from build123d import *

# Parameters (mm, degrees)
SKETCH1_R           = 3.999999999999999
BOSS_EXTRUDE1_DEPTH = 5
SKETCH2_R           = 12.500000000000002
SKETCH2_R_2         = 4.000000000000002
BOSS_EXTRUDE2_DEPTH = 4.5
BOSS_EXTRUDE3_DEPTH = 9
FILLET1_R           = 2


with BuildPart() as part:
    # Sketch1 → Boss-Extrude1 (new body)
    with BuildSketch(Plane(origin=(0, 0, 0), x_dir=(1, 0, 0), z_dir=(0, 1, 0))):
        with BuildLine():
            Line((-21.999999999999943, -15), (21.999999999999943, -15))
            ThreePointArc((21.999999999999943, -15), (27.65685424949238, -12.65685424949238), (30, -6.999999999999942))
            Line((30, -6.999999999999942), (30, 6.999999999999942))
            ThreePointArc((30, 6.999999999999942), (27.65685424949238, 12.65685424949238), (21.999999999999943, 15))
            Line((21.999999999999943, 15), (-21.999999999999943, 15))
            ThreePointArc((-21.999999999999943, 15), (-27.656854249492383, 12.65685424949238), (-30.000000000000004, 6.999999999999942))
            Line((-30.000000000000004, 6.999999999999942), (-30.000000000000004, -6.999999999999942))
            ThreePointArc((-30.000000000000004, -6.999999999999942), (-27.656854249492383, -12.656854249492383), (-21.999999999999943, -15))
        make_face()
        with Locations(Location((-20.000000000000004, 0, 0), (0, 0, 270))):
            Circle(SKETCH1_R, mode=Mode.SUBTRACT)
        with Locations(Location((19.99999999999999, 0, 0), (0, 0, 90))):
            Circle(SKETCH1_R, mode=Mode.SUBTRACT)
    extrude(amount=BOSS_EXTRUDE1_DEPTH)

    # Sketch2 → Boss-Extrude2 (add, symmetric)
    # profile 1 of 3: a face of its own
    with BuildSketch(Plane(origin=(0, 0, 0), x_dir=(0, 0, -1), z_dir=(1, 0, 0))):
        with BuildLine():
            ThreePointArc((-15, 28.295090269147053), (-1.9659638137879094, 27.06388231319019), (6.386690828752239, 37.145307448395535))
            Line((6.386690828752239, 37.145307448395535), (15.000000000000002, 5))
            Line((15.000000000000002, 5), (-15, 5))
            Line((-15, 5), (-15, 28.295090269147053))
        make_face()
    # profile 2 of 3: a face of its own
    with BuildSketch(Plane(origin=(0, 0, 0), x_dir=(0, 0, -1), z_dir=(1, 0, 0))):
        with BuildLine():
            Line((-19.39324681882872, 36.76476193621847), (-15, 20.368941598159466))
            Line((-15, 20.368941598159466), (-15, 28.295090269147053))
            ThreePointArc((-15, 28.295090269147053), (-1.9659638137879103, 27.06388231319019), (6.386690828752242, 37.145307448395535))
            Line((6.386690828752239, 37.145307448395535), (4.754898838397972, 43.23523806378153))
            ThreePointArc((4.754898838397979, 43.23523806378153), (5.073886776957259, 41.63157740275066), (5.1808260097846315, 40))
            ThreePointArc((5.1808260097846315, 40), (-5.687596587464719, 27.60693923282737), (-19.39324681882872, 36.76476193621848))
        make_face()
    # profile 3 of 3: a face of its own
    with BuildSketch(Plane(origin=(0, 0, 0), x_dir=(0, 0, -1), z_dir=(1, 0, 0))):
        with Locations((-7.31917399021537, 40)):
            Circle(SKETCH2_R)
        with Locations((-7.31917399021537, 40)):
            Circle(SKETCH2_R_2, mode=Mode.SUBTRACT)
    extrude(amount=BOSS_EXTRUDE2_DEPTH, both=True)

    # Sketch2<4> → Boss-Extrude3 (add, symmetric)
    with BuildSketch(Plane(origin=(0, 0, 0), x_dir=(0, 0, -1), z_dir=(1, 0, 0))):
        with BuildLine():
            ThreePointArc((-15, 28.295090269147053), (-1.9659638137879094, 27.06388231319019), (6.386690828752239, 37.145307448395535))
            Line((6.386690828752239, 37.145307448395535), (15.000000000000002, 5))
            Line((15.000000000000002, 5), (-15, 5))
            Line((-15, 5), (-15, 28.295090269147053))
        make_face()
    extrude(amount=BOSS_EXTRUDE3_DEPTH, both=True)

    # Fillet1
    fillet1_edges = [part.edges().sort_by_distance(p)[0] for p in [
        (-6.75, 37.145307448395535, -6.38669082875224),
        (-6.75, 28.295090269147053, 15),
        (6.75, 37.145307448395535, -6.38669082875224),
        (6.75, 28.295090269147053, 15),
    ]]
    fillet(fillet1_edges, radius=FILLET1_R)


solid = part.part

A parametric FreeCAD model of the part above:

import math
import FreeCAD as App
import Part
import Sketcher
Q = App.Units.Quantity


def edges_at(feature, points):
    """Names of the edges that pass closest to the given points."""
    edges = feature.Shape.Edges
    near = lambda p: min(range(len(edges)), key=lambda i: edges[i].distToShape(Part.Vertex(*p))[0])
    return sorted({f"Edge{near(p) + 1}" for p in points})

doc = App.newDocument("Part")
body = doc.addObject("PartDesign::Body", "Body")

sketch1 = body.newObject("Sketcher::SketchObject", "Sketch")
sketch1.AttachmentSupport = (doc.getObject("XZ_Plane"), [""])
sketch1.MapMode = "FlatFace"
sketch1.addGeometry([
    Part.LineSegment(App.Vector(-22, 15, 0), App.Vector(22, 15, 0)),
    Part.ArcOfCircle(Part.Circle(App.Vector(22, 7, 0), App.Vector(0, 0, 1), 8), math.radians(0), math.radians(90)),
    Part.LineSegment(App.Vector(30, 7, 0), App.Vector(30, -7, 0)),
    Part.ArcOfCircle(Part.Circle(App.Vector(22, -7, 0), App.Vector(0, 0, 1), 8), math.radians(-90), math.radians(0)),
    Part.LineSegment(App.Vector(22, -15, 0), App.Vector(-22, -15, 0)),
    Part.ArcOfCircle(Part.Circle(App.Vector(-22, -7, 0), App.Vector(0, 0, 1), 8), math.radians(180), math.radians(270)),
    Part.LineSegment(App.Vector(-30, -7, 0), App.Vector(-30, 7, 0)),
    Part.ArcOfCircle(Part.Circle(App.Vector(-22, 7, 0), App.Vector(0, 0, 1), 8), math.radians(90), math.radians(180)),
    Part.Circle(App.Vector(-20, 0, 0), App.Vector(0, 0, 1), 4),
    Part.Circle(App.Vector(20, 0, 0), App.Vector(0, 0, 1), 4),
], False)
sketch1.addConstraint([
    Sketcher.Constraint("Tangent", 0, 2, 1, 2),
    Sketcher.Constraint("Tangent", 1, 1, 2, 1),
    Sketcher.Constraint("Tangent", 2, 2, 3, 2),
    Sketcher.Constraint("Tangent", 3, 1, 4, 1),
    Sketcher.Constraint("Tangent", 4, 2, 5, 2),
    Sketcher.Constraint("Tangent", 5, 1, 6, 1),
    Sketcher.Constraint("Tangent", 6, 2, 7, 2),
    Sketcher.Constraint("Tangent", 7, 1, 0, 1),
    Sketcher.Constraint("Horizontal", 0),
    Sketcher.Constraint("Vertical", 2),
    Sketcher.Constraint("Horizontal", 4),
    Sketcher.Constraint("Vertical", 6),
    Sketcher.Constraint("Equal", 1, 3),
    Sketcher.Constraint("Equal", 3, 5),
    Sketcher.Constraint("Equal", 5, 7),
    Sketcher.Constraint("Equal", 8, 9),
    Sketcher.Constraint("Symmetric", 1, 3, 5, 3, -1, 1),
    Sketcher.Constraint("Symmetric", 8, 3, 9, 3, -1, 1),
    Sketcher.Constraint("PointOnObject", 8, 3, -1),
    Sketcher.Constraint("Diameter", 8, 8.0),
    Sketcher.Constraint("Radius", 1, 8.0),
    Sketcher.Constraint("DistanceX", 0, 1, 0, 2, 44.0),
    Sketcher.Constraint("DistanceY", 2, 2, 2, 1, 14.0),
    Sketcher.Constraint("DistanceX", 8, 3, -1, 1, 20.0),
])
pad1 = body.newObject("PartDesign::Pad", "Pad")
pad1.Profile = sketch1
pad1.Length = 5
pad1.Reversed = True

sketch2 = body.newObject("Sketcher::SketchObject", "Sketch001")
sketch2.AttachmentSupport = (doc.getObject("YZ_Plane"), [""])
sketch2.MapMode = "FlatFace"
sketch2.addGeometry([
    Part.LineSegment(App.Vector(5, -15, 0), App.Vector(43.2, -4.8, 0)),
    Part.ArcOfCircle(Part.Circle(App.Vector(40, 7.3, 0), App.Vector(0, 0, 1), 12.5), math.radians(-75), math.radians(105)),
    Part.LineSegment(App.Vector(36.8, 19.4, 0), App.Vector(20.4, 15, 0)),
    Part.LineSegment(App.Vector(20.4, 15, 0), App.Vector(5, 15, 0)),
    Part.LineSegment(App.Vector(5, 15, 0), App.Vector(5, -15, 0)),
    Part.Circle(App.Vector(40, 7.3, 0), App.Vector(0, 0, 1), 4),
], False)
sketch2.addConstraint([
    Sketcher.Constraint("Tangent", 0, 2, 1, 1),
    Sketcher.Constraint("Tangent", 1, 2, 2, 1),
    Sketcher.Constraint("Coincident", 2, 2, 3, 1),
    Sketcher.Constraint("Coincident", 3, 2, 4, 1),
    Sketcher.Constraint("Coincident", 4, 2, 0, 1),
    Sketcher.Constraint("Horizontal", 3),
    Sketcher.Constraint("Vertical", 4),
    Sketcher.Constraint("Coincident", 5, 3, 1, 3),
    Sketcher.Constraint("Parallel", 0, 2),
    Sketcher.Constraint("Diameter", 5, 8.0),
    Sketcher.Constraint("Radius", 1, 12.5),
    Sketcher.Constraint("DistanceY", 4, 2, 4, 1, 30.0),
    Sketcher.Constraint("Angle", 0, Q("15 deg")),
    Sketcher.Constraint("DistanceX", -1, 1, 1, 3, 40.0),
    Sketcher.Constraint("DistanceY", -1, 1, 2, 2, 15.0),
    Sketcher.Constraint("DistanceX", -1, 1, 3, 2, 5.0),
])
pad2 = body.newObject("PartDesign::Pad", "Pad001")
pad2.Profile = sketch2
pad2.Length = 9
pad2.Midplane = True

sketch3 = body.newObject("Sketcher::SketchObject", "Sketch002")
sketch3.AttachmentSupport = (doc.getObject("YZ_Plane"), [""])
sketch3.MapMode = "FlatFace"
sketch3.addGeometry([
    Part.ArcOfCircle(Part.Circle(App.Vector(40, 7, 0), App.Vector(0, 0, 1), 14), math.radians(147), math.radians(258)),
    Part.LineSegment(App.Vector(28, 15, 0), App.Vector(5, 15, 0)),
    Part.LineSegment(App.Vector(5, 15, 0), App.Vector(5, -15, 0)),
    Part.LineSegment(App.Vector(5, -15, 0), App.Vector(37, -6, 0)),
], False)
sketch3.addConstraint([
    Sketcher.Constraint("Coincident", 0, 1, 1, 1),
    Sketcher.Constraint("Coincident", 1, 2, 2, 1),
    Sketcher.Constraint("Coincident", 2, 2, 3, 1),
    Sketcher.Constraint("Coincident", 3, 2, 0, 2),
    Sketcher.Constraint("Horizontal", 1),
    Sketcher.Constraint("Vertical", 2),
    Sketcher.Constraint("Radius", 0, 14.0),
    Sketcher.Constraint("DistanceY", 2, 2, 2, 1, 30.0),
    Sketcher.Constraint("Angle", 3, Q("15 deg")),
    Sketcher.Constraint("DistanceX", -1, 1, 0, 3, 40.0),
    Sketcher.Constraint("DistanceY", -1, 1, 0, 1, 15.0),
    Sketcher.Constraint("DistanceX", -1, 1, 1, 2, 5.0),
    Sketcher.Constraint("DistanceX", 1, 2, 1, 1, 23.29509),
])
pad3 = body.newObject("PartDesign::Pad", "Pad002")
pad3.Profile = sketch3
pad3.Length = 18
pad3.Midplane = True
doc.recompute()

fillet = body.newObject("PartDesign::Fillet", "Fillet")
fillet.Base = (pad3, edges_at(pad3, [
    (-6.75, 37.145, -6.387),
    (-6.75, 28.295, 15),
    (6.75, 37.145, -6.387),
    (6.75, 28.295, 15),
]))
fillet.Radius = 2

doc.recompute()
